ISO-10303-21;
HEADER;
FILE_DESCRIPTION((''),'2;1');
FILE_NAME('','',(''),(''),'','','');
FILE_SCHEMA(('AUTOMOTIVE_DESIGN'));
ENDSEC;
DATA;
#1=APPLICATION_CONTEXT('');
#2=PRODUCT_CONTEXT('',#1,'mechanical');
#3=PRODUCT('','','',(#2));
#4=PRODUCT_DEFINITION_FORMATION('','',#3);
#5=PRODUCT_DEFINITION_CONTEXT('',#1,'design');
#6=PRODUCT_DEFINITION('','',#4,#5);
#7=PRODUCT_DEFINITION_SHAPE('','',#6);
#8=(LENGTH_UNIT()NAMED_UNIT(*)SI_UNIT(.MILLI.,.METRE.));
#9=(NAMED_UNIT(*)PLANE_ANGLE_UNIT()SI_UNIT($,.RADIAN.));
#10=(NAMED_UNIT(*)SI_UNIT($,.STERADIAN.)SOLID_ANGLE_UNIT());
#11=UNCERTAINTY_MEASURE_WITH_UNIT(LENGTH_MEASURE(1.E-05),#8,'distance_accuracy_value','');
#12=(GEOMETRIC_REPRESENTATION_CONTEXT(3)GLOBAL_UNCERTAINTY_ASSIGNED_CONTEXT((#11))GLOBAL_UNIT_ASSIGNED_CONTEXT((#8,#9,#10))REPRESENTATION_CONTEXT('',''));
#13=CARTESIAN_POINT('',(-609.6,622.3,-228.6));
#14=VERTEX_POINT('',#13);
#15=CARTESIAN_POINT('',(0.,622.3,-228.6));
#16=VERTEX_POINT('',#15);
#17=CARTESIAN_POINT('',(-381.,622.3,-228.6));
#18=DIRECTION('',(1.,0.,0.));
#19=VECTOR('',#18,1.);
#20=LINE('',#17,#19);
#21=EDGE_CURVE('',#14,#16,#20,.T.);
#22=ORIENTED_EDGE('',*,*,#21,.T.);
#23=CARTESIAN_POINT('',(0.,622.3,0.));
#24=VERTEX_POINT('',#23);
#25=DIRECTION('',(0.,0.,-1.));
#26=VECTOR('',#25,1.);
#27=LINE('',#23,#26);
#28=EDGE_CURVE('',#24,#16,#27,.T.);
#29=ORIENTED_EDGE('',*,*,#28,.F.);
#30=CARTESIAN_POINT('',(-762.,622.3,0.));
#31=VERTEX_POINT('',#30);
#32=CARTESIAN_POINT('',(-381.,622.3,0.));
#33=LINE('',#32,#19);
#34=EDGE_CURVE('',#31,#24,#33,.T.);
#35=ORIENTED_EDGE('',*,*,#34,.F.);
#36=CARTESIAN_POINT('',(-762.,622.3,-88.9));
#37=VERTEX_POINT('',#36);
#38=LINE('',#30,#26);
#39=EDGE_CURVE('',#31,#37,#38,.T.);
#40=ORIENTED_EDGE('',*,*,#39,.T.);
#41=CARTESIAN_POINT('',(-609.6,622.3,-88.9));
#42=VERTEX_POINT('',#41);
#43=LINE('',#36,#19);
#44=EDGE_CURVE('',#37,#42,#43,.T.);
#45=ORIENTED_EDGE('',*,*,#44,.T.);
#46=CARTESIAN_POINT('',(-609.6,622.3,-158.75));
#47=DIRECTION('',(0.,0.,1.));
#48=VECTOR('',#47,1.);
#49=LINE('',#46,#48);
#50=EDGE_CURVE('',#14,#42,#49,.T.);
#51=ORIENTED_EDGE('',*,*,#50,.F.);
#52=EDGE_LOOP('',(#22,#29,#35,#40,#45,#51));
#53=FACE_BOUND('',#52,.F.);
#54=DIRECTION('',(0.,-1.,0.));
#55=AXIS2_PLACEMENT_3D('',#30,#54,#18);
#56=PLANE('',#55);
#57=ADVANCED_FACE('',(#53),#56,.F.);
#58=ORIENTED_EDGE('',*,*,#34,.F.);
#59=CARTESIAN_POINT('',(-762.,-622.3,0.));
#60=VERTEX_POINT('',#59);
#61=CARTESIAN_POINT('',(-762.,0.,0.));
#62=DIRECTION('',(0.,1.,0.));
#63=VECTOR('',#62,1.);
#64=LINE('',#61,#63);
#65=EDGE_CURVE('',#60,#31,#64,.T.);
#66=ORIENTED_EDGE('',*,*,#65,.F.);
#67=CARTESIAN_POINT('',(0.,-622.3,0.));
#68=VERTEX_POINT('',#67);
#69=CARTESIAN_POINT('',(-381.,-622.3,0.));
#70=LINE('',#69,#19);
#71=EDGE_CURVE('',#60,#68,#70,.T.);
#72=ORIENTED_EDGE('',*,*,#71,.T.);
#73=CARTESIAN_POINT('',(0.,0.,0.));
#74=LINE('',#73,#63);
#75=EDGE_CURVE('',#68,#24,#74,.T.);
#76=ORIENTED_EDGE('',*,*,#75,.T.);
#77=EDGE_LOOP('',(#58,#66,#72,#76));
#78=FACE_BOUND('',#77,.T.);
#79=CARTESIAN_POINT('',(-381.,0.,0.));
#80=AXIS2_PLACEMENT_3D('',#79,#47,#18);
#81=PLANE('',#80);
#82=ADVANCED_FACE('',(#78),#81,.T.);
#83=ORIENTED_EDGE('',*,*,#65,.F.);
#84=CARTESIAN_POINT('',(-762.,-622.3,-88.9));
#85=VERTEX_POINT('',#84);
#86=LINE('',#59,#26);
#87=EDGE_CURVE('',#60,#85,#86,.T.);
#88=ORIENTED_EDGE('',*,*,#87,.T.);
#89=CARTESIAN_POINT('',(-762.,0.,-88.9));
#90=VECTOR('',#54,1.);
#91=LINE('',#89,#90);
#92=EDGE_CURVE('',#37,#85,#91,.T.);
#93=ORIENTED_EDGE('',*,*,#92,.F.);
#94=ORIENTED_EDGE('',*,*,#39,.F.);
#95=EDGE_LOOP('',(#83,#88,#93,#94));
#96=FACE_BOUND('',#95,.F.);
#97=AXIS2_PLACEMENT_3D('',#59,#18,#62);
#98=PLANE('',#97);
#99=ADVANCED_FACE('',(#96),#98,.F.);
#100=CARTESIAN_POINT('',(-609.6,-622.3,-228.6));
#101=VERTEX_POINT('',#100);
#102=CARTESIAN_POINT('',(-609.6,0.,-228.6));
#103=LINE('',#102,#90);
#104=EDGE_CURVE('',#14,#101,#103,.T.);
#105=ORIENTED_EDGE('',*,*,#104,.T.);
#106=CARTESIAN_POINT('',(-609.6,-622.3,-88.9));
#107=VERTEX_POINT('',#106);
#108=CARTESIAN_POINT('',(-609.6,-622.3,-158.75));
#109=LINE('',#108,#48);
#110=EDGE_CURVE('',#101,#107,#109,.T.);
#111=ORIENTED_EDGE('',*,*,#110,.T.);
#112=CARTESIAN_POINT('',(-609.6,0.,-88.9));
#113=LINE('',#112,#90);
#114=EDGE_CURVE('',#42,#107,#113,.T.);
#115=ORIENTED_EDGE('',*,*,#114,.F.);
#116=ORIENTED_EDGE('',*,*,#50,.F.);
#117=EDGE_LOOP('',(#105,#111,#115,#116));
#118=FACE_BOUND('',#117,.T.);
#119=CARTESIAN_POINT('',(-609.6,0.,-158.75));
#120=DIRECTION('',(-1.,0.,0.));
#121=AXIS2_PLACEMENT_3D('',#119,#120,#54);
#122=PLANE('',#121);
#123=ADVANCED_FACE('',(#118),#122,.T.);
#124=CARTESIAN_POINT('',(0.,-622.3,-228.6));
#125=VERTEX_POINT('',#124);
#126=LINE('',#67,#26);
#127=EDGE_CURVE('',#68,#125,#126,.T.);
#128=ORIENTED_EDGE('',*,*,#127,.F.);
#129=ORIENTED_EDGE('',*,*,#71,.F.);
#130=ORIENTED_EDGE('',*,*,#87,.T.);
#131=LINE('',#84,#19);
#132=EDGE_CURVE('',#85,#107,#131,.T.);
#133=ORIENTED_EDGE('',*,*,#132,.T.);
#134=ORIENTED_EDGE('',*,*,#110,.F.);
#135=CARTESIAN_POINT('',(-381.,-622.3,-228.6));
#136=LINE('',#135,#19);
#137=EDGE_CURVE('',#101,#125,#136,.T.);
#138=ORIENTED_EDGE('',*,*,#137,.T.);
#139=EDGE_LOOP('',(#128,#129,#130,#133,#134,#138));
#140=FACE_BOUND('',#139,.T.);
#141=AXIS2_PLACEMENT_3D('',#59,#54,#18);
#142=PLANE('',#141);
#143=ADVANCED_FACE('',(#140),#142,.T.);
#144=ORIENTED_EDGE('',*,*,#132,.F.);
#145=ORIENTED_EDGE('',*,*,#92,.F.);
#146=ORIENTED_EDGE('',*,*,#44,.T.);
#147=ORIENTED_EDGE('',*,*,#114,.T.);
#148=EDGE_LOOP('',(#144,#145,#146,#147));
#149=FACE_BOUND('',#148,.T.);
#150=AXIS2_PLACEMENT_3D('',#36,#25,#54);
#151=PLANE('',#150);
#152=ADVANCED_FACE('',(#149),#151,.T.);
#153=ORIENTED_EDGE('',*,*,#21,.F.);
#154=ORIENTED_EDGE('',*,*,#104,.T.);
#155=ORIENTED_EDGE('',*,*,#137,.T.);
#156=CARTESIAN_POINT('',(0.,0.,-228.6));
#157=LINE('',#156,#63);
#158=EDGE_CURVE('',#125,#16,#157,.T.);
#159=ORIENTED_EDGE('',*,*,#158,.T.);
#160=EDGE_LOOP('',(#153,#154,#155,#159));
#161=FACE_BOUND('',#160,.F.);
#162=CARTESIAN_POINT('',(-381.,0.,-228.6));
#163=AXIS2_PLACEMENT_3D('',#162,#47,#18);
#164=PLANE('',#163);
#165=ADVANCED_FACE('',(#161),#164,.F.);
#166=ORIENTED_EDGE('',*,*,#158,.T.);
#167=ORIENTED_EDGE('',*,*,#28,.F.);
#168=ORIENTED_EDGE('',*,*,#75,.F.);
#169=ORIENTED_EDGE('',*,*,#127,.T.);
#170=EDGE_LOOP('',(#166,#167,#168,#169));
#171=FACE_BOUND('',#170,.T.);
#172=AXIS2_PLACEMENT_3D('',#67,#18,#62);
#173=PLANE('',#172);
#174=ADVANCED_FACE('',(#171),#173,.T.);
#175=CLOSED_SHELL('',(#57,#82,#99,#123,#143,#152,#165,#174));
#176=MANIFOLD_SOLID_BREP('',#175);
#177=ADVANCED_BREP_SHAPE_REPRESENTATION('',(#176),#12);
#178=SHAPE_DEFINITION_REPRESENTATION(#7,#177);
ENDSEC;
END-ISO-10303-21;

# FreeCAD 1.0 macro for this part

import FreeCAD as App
import Part
import Sketcher
from FreeCAD import Vector
Q = App.Units.Quantity

doc = App.newDocument("Part")
body = doc.addObject("PartDesign::Body", "Body")

sketch1 = doc.addObject("Sketcher::SketchObject", "Sketch")
body.addObject(sketch1)
sketch1.AttachmentSupport = (doc.XY_Plane, [""])
sketch1.MapMode = "FlatFace"
sketch1.addGeometry(Part.LineSegment(Vector(-762, 622, 0), Vector(-762, -622, 0)), False)
sketch1.addGeometry(Part.LineSegment(Vector(-762, -622, 0), Vector(0, -622, 0)), False)
sketch1.addGeometry(Part.LineSegment(Vector(0, -622, 0), Vector(0, 622, 0)), False)
sketch1.addGeometry(Part.LineSegment(Vector(0, 622, 0), Vector(-762, 622, 0)), False)
sketch1.addConstraint(Sketcher.Constraint("Coincident", 0, 2, 1, 1))
sketch1.addConstraint(Sketcher.Constraint("Coincident", 1, 2, 2, 1))
sketch1.addConstraint(Sketcher.Constraint("Coincident", 2, 2, 3, 1))
sketch1.addConstraint(Sketcher.Constraint("Coincident", 3, 2, 0, 1))
sketch1.addConstraint(Sketcher.Constraint("Vertical", 0))
sketch1.addConstraint(Sketcher.Constraint("Horizontal", 1))
sketch1.addConstraint(Sketcher.Constraint("Vertical", 2))
sketch1.addConstraint(Sketcher.Constraint("Horizontal", 3))
sketch1.addConstraint(Sketcher.Constraint("Symmetric", 1, 2, 2, 2, -1, 1))
sketch1.addConstraint(Sketcher.Constraint("DistanceX", 1, 1, 1, 2, Q("30 in")))
sketch1.addConstraint(Sketcher.Constraint("DistanceY", 0, 2, 0, 1, Q("49 in")))
pad1 = doc.addObject("PartDesign::Pad", "Pad")
body.addObject(pad1)
pad1.Profile = sketch1
pad1.Length = Q("9 in")
pad1.Reversed = True

sketch2 = doc.addObject("Sketcher::SketchObject", "Sketch001")
body.addObject(sketch2)
sketch2.AttachmentSupport = (doc.YZ_Plane, [""])
sketch2.MapMode = "FlatFace"
sketch2.AttachmentOffset = App.Placement(Vector(0, 0, -30 * 25.4), App.Rotation())
sketch2.addGeometry(Part.LineSegment(Vector(622, -89, 0), Vector(622, -229, 0)), False)
sketch2.addGeometry(Part.LineSegment(Vector(622, -229, 0), Vector(-622, -229, 0)), False)
sketch2.addGeometry(Part.LineSegment(Vector(-622, -229, 0), Vector(-622, -89, 0)), False)
sketch2.addGeometry(Part.LineSegment(Vector(-622, -89, 0), Vector(622, -89, 0)), False)
sketch2.addConstraint(Sketcher.Constraint("Coincident", 0, 2, 1, 1))
sketch2.addConstraint(Sketcher.Constraint("Coincident", 1, 2, 2, 1))
sketch2.addConstraint(Sketcher.Constraint("Coincident", 2, 2, 3, 1))
sketch2.addConstraint(Sketcher.Constraint("Coincident", 3, 2, 0, 1))
sketch2.addConstraint(Sketcher.Constraint("Vertical", 0))
sketch2.addConstraint(Sketcher.Constraint("Horizontal", 1))
sketch2.addConstraint(Sketcher.Constraint("Vertical", 2))
sketch2.addConstraint(Sketcher.Constraint("Horizontal", 3))
sketch2.addConstraint(Sketcher.Constraint("DistanceX", 1, 2, 1, 1, Q("49 in")))
sketch2.addConstraint(Sketcher.Constraint("DistanceY", 0, 2, 0, 1, Q("5.5 in")))
sketch2.addConstraint(Sketcher.Constraint("DistanceY", 0, 2, -1, 1, Q("9 in")))
sketch2.addConstraint(Sketcher.Constraint("DistanceX", -1, 1, 0, 2, Q("24.5 in")))
pocket1 = doc.addObject("PartDesign::Pocket", "Pocket")
body.addObject(pocket1)
pocket1.Profile = sketch2
pocket1.Length = Q("6 in")
pocket1.Reversed = True

doc.recompute()
